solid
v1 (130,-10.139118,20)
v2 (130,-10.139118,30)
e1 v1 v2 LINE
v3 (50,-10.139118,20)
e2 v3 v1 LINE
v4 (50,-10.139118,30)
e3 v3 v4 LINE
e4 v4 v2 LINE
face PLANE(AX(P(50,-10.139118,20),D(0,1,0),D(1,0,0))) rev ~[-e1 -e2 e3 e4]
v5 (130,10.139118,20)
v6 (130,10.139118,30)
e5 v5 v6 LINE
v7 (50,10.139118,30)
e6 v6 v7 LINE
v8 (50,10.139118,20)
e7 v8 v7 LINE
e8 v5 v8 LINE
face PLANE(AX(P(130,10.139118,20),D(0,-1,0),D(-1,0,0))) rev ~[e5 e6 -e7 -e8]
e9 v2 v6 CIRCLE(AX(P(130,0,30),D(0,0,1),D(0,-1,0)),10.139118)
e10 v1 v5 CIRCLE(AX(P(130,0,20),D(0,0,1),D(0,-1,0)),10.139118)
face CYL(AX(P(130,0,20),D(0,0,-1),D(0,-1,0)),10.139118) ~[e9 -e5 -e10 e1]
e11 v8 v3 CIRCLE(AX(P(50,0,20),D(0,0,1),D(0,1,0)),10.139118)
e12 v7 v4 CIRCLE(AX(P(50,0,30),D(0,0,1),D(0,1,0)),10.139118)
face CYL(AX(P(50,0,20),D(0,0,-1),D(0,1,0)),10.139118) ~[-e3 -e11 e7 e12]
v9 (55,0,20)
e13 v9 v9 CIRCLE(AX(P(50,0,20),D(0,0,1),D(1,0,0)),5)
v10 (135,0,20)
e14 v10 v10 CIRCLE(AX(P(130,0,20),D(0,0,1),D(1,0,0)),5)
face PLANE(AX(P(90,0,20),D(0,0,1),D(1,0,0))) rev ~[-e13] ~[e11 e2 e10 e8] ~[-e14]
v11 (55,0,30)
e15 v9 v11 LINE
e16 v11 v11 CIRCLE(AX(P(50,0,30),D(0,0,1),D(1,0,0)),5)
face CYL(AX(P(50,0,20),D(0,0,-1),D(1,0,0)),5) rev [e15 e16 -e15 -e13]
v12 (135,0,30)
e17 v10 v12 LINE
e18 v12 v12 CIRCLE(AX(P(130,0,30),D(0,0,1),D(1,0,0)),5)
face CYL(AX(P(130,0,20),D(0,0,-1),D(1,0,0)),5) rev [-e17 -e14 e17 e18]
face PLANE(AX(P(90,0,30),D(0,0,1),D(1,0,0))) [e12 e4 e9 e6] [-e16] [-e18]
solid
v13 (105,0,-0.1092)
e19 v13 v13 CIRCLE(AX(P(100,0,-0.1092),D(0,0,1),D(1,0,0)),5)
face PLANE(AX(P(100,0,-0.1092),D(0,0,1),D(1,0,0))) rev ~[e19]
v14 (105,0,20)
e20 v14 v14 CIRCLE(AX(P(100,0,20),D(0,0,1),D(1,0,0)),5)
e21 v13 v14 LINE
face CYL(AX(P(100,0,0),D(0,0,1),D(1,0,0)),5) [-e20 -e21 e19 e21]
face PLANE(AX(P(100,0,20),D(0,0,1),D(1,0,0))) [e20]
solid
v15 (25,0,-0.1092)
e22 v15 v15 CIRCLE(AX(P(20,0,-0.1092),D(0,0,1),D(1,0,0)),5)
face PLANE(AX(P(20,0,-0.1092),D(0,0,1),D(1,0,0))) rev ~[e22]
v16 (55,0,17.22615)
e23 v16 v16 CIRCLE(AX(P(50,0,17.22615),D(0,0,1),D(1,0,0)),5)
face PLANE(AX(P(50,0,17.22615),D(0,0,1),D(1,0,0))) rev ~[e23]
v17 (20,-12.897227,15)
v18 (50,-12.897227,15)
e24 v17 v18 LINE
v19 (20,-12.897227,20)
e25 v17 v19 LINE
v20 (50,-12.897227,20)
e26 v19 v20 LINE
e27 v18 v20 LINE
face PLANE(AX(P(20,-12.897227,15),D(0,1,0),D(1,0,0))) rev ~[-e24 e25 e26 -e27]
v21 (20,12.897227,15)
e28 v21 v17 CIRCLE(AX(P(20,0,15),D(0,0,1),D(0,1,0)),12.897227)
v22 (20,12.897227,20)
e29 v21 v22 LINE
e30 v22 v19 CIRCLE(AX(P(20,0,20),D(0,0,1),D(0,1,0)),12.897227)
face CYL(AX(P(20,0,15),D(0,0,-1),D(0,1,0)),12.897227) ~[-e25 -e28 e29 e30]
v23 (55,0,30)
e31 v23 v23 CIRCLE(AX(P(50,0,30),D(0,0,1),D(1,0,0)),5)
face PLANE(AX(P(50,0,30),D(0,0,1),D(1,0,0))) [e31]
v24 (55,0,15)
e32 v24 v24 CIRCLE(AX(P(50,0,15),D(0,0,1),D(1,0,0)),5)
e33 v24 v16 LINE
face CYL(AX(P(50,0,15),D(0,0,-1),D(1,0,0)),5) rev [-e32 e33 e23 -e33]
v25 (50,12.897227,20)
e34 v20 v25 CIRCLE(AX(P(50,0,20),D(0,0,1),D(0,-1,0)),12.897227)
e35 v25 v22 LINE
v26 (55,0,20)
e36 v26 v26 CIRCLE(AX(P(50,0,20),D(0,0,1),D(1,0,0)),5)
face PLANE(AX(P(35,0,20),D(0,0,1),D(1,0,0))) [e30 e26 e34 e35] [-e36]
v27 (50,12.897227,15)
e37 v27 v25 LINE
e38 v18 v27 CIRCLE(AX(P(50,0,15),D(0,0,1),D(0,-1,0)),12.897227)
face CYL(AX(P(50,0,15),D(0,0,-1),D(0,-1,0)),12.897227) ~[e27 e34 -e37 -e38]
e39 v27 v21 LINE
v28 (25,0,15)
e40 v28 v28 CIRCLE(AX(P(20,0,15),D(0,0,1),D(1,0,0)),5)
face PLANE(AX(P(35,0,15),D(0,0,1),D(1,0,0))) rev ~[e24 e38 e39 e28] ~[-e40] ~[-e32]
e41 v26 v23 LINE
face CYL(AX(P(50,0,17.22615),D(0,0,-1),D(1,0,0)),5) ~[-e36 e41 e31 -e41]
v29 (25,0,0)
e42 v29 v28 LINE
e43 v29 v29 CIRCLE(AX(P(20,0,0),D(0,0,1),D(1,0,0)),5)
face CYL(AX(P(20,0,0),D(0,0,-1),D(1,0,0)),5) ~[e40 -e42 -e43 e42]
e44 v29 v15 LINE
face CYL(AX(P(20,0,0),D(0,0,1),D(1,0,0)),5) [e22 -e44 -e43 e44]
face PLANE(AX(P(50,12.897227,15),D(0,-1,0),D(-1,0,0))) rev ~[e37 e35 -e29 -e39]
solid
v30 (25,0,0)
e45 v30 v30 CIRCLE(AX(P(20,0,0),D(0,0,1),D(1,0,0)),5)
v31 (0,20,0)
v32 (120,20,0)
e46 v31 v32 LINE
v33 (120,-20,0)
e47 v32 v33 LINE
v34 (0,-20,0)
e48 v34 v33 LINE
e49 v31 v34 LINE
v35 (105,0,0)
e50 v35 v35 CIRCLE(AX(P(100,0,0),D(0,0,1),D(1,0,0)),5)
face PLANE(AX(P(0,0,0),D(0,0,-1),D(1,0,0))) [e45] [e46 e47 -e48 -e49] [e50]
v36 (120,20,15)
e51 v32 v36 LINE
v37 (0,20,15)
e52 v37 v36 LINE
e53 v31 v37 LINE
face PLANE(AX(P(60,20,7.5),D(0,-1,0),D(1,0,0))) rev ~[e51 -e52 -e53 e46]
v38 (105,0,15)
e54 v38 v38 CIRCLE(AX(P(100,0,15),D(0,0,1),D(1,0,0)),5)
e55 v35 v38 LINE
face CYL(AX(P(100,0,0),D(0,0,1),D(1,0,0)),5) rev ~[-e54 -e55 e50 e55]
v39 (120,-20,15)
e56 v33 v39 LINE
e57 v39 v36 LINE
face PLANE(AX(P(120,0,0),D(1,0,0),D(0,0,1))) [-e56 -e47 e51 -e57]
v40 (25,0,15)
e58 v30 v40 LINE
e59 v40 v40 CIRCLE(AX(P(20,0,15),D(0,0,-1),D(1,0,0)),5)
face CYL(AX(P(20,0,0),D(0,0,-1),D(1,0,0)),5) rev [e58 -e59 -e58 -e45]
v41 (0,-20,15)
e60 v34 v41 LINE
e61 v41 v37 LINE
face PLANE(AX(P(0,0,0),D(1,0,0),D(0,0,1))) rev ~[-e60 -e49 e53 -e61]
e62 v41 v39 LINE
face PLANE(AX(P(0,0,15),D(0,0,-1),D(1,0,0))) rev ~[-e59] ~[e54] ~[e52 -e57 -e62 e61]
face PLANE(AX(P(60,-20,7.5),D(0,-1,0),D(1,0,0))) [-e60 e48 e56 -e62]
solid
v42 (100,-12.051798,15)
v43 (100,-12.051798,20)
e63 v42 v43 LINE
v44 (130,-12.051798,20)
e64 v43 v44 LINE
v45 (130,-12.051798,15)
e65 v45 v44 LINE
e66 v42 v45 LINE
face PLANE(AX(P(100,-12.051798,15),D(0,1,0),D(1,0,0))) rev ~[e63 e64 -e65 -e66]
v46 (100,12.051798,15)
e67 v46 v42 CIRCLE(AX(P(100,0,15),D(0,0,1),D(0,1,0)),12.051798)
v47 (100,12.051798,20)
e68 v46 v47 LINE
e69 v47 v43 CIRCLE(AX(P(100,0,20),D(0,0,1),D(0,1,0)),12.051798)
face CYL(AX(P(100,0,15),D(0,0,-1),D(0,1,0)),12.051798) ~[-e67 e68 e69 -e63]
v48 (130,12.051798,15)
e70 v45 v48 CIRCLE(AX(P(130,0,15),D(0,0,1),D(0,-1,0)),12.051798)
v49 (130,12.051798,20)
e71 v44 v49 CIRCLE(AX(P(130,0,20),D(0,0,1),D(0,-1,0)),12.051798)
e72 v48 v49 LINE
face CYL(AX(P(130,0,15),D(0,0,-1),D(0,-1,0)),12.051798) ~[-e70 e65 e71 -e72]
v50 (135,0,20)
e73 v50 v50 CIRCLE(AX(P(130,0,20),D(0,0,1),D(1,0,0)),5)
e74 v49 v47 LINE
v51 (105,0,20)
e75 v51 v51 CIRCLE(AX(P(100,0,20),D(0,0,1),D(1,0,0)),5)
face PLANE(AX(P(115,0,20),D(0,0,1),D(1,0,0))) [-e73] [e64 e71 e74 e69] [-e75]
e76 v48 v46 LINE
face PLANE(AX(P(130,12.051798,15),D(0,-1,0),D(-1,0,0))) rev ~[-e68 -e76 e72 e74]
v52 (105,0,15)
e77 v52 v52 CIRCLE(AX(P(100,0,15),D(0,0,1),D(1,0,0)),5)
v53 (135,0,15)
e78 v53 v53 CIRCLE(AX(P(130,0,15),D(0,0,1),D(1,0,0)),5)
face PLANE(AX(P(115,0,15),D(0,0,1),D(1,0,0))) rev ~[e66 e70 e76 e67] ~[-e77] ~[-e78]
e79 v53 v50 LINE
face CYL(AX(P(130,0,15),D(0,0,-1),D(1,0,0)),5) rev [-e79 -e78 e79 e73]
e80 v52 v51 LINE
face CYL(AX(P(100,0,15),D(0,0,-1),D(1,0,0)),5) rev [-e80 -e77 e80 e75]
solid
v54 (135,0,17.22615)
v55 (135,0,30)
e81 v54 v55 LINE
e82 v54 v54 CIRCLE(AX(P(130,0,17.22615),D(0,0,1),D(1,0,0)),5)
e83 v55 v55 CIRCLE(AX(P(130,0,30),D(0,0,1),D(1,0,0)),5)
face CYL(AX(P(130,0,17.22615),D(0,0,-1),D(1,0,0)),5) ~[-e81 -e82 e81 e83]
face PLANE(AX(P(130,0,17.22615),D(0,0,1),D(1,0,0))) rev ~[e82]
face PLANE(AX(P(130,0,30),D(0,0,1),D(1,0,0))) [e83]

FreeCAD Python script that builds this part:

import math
import FreeCAD as App
import Part
import Sketcher
from FreeCAD import Vector
Q = App.Units.Quantity

doc = App.newDocument("Part")
body = doc.addObject("PartDesign::Body", "Body")

# Sketch on XZ plane
sketch1 = body.newObject("Sketcher::SketchObject", "Sketch")
sketch1.AttachmentSupport = (doc.getObject("XZ_Plane"), [""])
sketch1.MapMode = "FlatFace"
sketch1.addGeometry(Part.LineSegment(Vector(0, 15, 0), Vector(0, 0, 0)), False)
sketch1.addGeometry(Part.LineSegment(Vector(0, 0, 0), Vector(120, 0, 0)), False)
sketch1.addGeometry(Part.LineSegment(Vector(120, 0, 0), Vector(120, 15, 0)), False)
sketch1.addGeometry(Part.LineSegment(Vector(120, 15, 0), Vector(0, 15, 0)), False)
sketch1.addConstraint(Sketcher.Constraint("Coincident", 0, 2, 1, 1))
sketch1.addConstraint(Sketcher.Constraint("Coincident", 1, 2, 2, 1))
sketch1.addConstraint(Sketcher.Constraint("Coincident", 2, 2, 3, 1))
sketch1.addConstraint(Sketcher.Constraint("Coincident", 3, 2, 0, 1))
sketch1.addConstraint(Sketcher.Constraint("Vertical", 0))
sketch1.addConstraint(Sketcher.Constraint("Horizontal", 1))
sketch1.addConstraint(Sketcher.Constraint("Vertical", 2))
sketch1.addConstraint(Sketcher.Constraint("Horizontal", 3))
sketch1.addConstraint(Sketcher.Constraint("Coincident", 0, 2, -1, 1))
sketch1.addConstraint(Sketcher.Constraint("DistanceX", 1, 1, 1, 2, Q("120 mm")))
sketch1.addConstraint(Sketcher.Constraint("DistanceY", 0, 2, 0, 1, Q("15 mm")))
pad1 = body.newObject("PartDesign::Pad", "Pad")
pad1.Profile = sketch1
pad1.Length = 40
pad1.Midplane = True

# Sketch on XY plane
sketch2 = body.newObject("Sketcher::SketchObject", "Sketch001")
sketch2.AttachmentSupport = (doc.getObject("XY_Plane"), [""])
sketch2.MapMode = "FlatFace"
sketch2.addGeometry(Part.Circle(Vector(20, 0, 0), Vector(0, 0, 1), 5), False)
sketch2.addGeometry(Part.Circle(Vector(100, 0, 0), Vector(0, 0, 1), 5), False)
sketch2.addConstraint(Sketcher.Constraint("Equal", 0, 1))
sketch2.addConstraint(Sketcher.Constraint("PointOnObject", 0, 3, -1))
sketch2.addConstraint(Sketcher.Constraint("PointOnObject", 1, 3, -1))
sketch2.addConstraint(Sketcher.Constraint("Diameter", 0, Q("10 mm")))
sketch2.addConstraint(Sketcher.Constraint("DistanceX", -1, 1, 0, 3, Q("20 mm")))
sketch2.addConstraint(Sketcher.Constraint("DistanceX", -1, 1, 1, 3, Q("100 mm")))
pocket1 = body.newObject("PartDesign::Pocket", "Pocket")
pocket1.Profile = sketch2
pocket1.Length = 100
pocket1.Midplane = True
body2 = doc.addObject("PartDesign::Body", "Body001")
body2.AllowCompound = True

# Sketch on XY plane
sketch3 = body2.newObject("Sketcher::SketchObject", "Sketch002")
sketch3.AttachmentSupport = (doc.getObject("XY_Plane001"), [""])
sketch3.MapMode = "FlatFace"
sketch3.AttachmentOffset = App.Placement(Vector(0, 0, 15), App.Rotation())
sketch3.addGeometry(Part.LineSegment(Vector(50, 12.897227, 0), Vector(20, 12.897227, 0)), False)
sketch3.addGeometry(Part.ArcOfCircle(Part.Circle(Vector(20, 0, 0), Vector(0, 0, 1), 12.897227), math.radians(90), math.radians(270)), False)
sketch3.addGeometry(Part.LineSegment(Vector(20, -12.897227, 0), Vector(50, -12.897227, 0)), False)
sketch3.addGeometry(Part.ArcOfCircle(Part.Circle(Vector(50, 0, 0), Vector(0, 0, 1), 12.897227), math.radians(-90), math.radians(90)), False)
sketch3.addGeometry(Part.Circle(Vector(20, 0, 0), Vector(0, 0, 1), 5), False)
sketch3.addGeometry(Part.Circle(Vector(50, 0, 0), Vector(0, 0, 1), 5), False)
sketch3.addConstraint(Sketcher.Constraint("Tangent", 0, 2, 1, 1))
sketch3.addConstraint(Sketcher.Constraint("Tangent", 1, 2, 2, 1))
sketch3.addConstraint(Sketcher.Constraint("Tangent", 2, 2, 3, 1))
sketch3.addConstraint(Sketcher.Constraint("Tangent", 3, 2, 0, 1))
sketch3.addConstraint(Sketcher.Constraint("Horizontal", 0))
sketch3.addConstraint(Sketcher.Constraint("Horizontal", 2))
sketch3.addConstraint(Sketcher.Constraint("Coincident", 4, 3, 1, 3))
sketch3.addConstraint(Sketcher.Constraint("Coincident", 5, 3, 3, 3))
sketch3.addConstraint(Sketcher.Constraint("Equal", 4, 5))
sketch3.addConstraint(Sketcher.Constraint("PointOnObject", 1, 3, -1))
sketch3.addConstraint(Sketcher.Constraint("Diameter", 4, Q("10 mm")))
sketch3.addConstraint(Sketcher.Constraint("DistanceX", 0, 2, 0, 1, Q("30 mm")))
sketch3.addConstraint(Sketcher.Constraint("DistanceX", -1, 1, 1, 3, Q("20 mm")))
sketch3.addConstraint(Sketcher.Constraint("Radius", 1, Q("12.897227 mm")))
pad2 = body2.newObject("PartDesign::Pad", "Pad001")
pad2.Profile = sketch3
pad2.Length = 5

# Sketch on XY plane
sketch4 = body2.newObject("Sketcher::SketchObject", "Sketch003")
sketch4.AttachmentSupport = (doc.getObject("XY_Plane001"), [""])
sketch4.MapMode = "FlatFace"
sketch4.AttachmentOffset = App.Placement(Vector(0, 0, 17.22615), App.Rotation())
sketch4.addGeometry(Part.Circle(Vector(50, 0, 0), Vector(0, 0, 1), 5), False)
sketch4.addConstraint(Sketcher.Constraint("PointOnObject", 0, 3, -1))
sketch4.addConstraint(Sketcher.Constraint("Diameter", 0, Q("10 mm")))
sketch4.addConstraint(Sketcher.Constraint("DistanceX", -1, 1, 0, 3, Q("50 mm")))
pad3 = body2.newObject("PartDesign::Pad", "Pad002")
pad3.Profile = sketch4
pad3.Length = 12.77385

# Sketch on XY plane
sketch5 = body2.newObject("Sketcher::SketchObject", "Sketch004")
sketch5.AttachmentSupport = (doc.getObject("XY_Plane001"), [""])
sketch5.MapMode = "FlatFace"
sketch5.addGeometry(Part.Circle(Vector(20, 0, 0), Vector(0, 0, 1), 5), False)
sketch5.addGeometry(Part.Circle(Vector(100, 0, 0), Vector(0, 0, 1), 5), False)
sketch5.addConstraint(Sketcher.Constraint("Equal", 0, 1))
sketch5.addConstraint(Sketcher.Constraint("PointOnObject", 0, 3, -1))
sketch5.addConstraint(Sketcher.Constraint("PointOnObject", 1, 3, -1))
sketch5.addConstraint(Sketcher.Constraint("Diameter", 0, Q("10 mm")))
sketch5.addConstraint(Sketcher.Constraint("DistanceX", -1, 1, 0, 3, Q("20 mm")))
sketch5.addConstraint(Sketcher.Constraint("DistanceX", -1, 1, 1, 3, Q("100 mm")))
pad4 = body2.newObject("PartDesign::Pad", "Pad003")
pad4.Profile = sketch5
pad4.Type = "TwoLengths"
pad4.Length = 20
pad4.Length2 = 0.1092
body3 = doc.addObject("PartDesign::Body", "Body002")

# Sketch on XY plane
sketch6 = body3.newObject("Sketcher::SketchObject", "Sketch005")
sketch6.AttachmentSupport = (doc.getObject("XY_Plane002"), [""])
sketch6.MapMode = "FlatFace"
sketch6.AttachmentOffset = App.Placement(Vector(0, 0, 15), App.Rotation())
sketch6.addGeometry(Part.LineSegment(Vector(130, 12.051798, 0), Vector(100, 12.051798, 0)), False)
sketch6.addGeometry(Part.ArcOfCircle(Part.Circle(Vector(100, 0, 0), Vector(0, 0, 1), 12.051798), math.radians(90), math.radians(270)), False)
sketch6.addGeometry(Part.LineSegment(Vector(100, -12.051798, 0), Vector(130, -12.051798, 0)), False)
sketch6.addGeometry(Part.ArcOfCircle(Part.Circle(Vector(130, 0, 0), Vector(0, 0, 1), 12.051798), math.radians(-90), math.radians(90)), False)
sketch6.addGeometry(Part.Circle(Vector(100, 0, 0), Vector(0, 0, 1), 5), False)
sketch6.addGeometry(Part.Circle(Vector(130, 0, 0), Vector(0, 0, 1), 5), False)
sketch6.addConstraint(Sketcher.Constraint("Tangent", 0, 2, 1, 1))
sketch6.addConstraint(Sketcher.Constraint("Tangent", 1, 2, 2, 1))
sketch6.addConstraint(Sketcher.Constraint("Tangent", 2, 2, 3, 1))
sketch6.addConstraint(Sketcher.Constraint("Tangent", 3, 2, 0, 1))
sketch6.addConstraint(Sketcher.Constraint("Horizontal", 0))
sketch6.addConstraint(Sketcher.Constraint("Horizontal", 2))
sketch6.addConstraint(Sketcher.Constraint("Coincident", 4, 3, 1, 3))
sketch6.addConstraint(Sketcher.Constraint("Coincident", 5, 3, 3, 3))
sketch6.addConstraint(Sketcher.Constraint("Equal", 4, 5))
sketch6.addConstraint(Sketcher.Constraint("PointOnObject", 1, 3, -1))
sketch6.addConstraint(Sketcher.Constraint("Diameter", 4, Q("10 mm")))
sketch6.addConstraint(Sketcher.Constraint("DistanceX", 0, 2, 0, 1, Q("30 mm")))
sketch6.addConstraint(Sketcher.Constraint("DistanceX", -1, 1, 1, 3, Q("100 mm")))
sketch6.addConstraint(Sketcher.Constraint("Radius", 1, Q("12.051798 mm")))
pad5 = body3.newObject("PartDesign::Pad", "Pad004")
pad5.Profile = sketch6
pad5.Length = 5
body4 = doc.addObject("PartDesign::Body", "Body003")

# Sketch on XY plane
sketch7 = body4.newObject("Sketcher::SketchObject", "Sketch006")
sketch7.AttachmentSupport = (doc.getObject("XY_Plane003"), [""])
sketch7.MapMode = "FlatFace"
sketch7.AttachmentOffset = App.Placement(Vector(0, 0, 17.22615), App.Rotation())
sketch7.addGeometry(Part.Circle(Vector(130, 0, 0), Vector(0, 0, 1), 5), False)
sketch7.addConstraint(Sketcher.Constraint("PointOnObject", 0, 3, -1))
sketch7.addConstraint(Sketcher.Constraint("Diameter", 0, Q("10 mm")))
sketch7.addConstraint(Sketcher.Constraint("DistanceX", -1, 1, 0, 3, Q("130 mm")))
pad6 = body4.newObject("PartDesign::Pad", "Pad005")
pad6.Profile = sketch7
pad6.Length = 12.77385
body5 = doc.addObject("PartDesign::Body", "Body004")

# Sketch on XY plane
sketch8 = body5.newObject("Sketcher::SketchObject", "Sketch007")
sketch8.AttachmentSupport = (doc.getObject("XY_Plane004"), [""])
sketch8.MapMode = "FlatFace"
sketch8.AttachmentOffset = App.Placement(Vector(0, 0, 20), App.Rotation())
sketch8.addGeometry(Part.LineSegment(Vector(130, 10.139118, 0), Vector(50, 10.139118, 0)), False)
sketch8.addGeometry(Part.ArcOfCircle(Part.Circle(Vector(50, 0, 0), Vector(0, 0, 1), 10.139118), math.radians(90), math.radians(270)), False)
sketch8.addGeometry(Part.LineSegment(Vector(50, -10.139118, 0), Vector(130, -10.139118, 0)), False)
sketch8.addGeometry(Part.ArcOfCircle(Part.Circle(Vector(130, 0, 0), Vector(0, 0, 1), 10.139118), math.radians(-90), math.radians(90)), False)
sketch8.addGeometry(Part.Circle(Vector(50, 0, 0), Vector(0, 0, 1), 5), False)
sketch8.addGeometry(Part.Circle(Vector(130, 0, 0), Vector(0, 0, 1), 5), False)
sketch8.addConstraint(Sketcher.Constraint("Tangent", 0, 2, 1, 1))
sketch8.addConstraint(Sketcher.Constraint("Tangent", 1, 2, 2, 1))
sketch8.addConstraint(Sketcher.Constraint("Tangent", 2, 2, 3, 1))
sketch8.addConstraint(Sketcher.Constraint("Tangent", 3, 2, 0, 1))
sketch8.addConstraint(Sketcher.Constraint("Horizontal", 0))
sketch8.addConstraint(Sketcher.Constraint("Horizontal", 2))
sketch8.addConstraint(Sketcher.Constraint("Coincident", 4, 3, 1, 3))
sketch8.addConstraint(Sketcher.Constraint("Coincident", 5, 3, 3, 3))
sketch8.addConstraint(Sketcher.Constraint("Equal", 4, 5))
sketch8.addConstraint(Sketcher.Constraint("PointOnObject", 1, 3, -1))
sketch8.addConstraint(Sketcher.Constraint("Diameter", 4, Q("10 mm")))
sketch8.addConstraint(Sketcher.Constraint("DistanceX", 0, 2, 0, 1, Q("80 mm")))
sketch8.addConstraint(Sketcher.Constraint("DistanceX", -1, 1, 1, 3, Q("50 mm")))
sketch8.addConstraint(Sketcher.Constraint("Radius", 1, Q("10.139118 mm")))
pad7 = body5.newObject("PartDesign::Pad", "Pad006")
pad7.Profile = sketch8
pad7.Length = 10

doc.recompute()
